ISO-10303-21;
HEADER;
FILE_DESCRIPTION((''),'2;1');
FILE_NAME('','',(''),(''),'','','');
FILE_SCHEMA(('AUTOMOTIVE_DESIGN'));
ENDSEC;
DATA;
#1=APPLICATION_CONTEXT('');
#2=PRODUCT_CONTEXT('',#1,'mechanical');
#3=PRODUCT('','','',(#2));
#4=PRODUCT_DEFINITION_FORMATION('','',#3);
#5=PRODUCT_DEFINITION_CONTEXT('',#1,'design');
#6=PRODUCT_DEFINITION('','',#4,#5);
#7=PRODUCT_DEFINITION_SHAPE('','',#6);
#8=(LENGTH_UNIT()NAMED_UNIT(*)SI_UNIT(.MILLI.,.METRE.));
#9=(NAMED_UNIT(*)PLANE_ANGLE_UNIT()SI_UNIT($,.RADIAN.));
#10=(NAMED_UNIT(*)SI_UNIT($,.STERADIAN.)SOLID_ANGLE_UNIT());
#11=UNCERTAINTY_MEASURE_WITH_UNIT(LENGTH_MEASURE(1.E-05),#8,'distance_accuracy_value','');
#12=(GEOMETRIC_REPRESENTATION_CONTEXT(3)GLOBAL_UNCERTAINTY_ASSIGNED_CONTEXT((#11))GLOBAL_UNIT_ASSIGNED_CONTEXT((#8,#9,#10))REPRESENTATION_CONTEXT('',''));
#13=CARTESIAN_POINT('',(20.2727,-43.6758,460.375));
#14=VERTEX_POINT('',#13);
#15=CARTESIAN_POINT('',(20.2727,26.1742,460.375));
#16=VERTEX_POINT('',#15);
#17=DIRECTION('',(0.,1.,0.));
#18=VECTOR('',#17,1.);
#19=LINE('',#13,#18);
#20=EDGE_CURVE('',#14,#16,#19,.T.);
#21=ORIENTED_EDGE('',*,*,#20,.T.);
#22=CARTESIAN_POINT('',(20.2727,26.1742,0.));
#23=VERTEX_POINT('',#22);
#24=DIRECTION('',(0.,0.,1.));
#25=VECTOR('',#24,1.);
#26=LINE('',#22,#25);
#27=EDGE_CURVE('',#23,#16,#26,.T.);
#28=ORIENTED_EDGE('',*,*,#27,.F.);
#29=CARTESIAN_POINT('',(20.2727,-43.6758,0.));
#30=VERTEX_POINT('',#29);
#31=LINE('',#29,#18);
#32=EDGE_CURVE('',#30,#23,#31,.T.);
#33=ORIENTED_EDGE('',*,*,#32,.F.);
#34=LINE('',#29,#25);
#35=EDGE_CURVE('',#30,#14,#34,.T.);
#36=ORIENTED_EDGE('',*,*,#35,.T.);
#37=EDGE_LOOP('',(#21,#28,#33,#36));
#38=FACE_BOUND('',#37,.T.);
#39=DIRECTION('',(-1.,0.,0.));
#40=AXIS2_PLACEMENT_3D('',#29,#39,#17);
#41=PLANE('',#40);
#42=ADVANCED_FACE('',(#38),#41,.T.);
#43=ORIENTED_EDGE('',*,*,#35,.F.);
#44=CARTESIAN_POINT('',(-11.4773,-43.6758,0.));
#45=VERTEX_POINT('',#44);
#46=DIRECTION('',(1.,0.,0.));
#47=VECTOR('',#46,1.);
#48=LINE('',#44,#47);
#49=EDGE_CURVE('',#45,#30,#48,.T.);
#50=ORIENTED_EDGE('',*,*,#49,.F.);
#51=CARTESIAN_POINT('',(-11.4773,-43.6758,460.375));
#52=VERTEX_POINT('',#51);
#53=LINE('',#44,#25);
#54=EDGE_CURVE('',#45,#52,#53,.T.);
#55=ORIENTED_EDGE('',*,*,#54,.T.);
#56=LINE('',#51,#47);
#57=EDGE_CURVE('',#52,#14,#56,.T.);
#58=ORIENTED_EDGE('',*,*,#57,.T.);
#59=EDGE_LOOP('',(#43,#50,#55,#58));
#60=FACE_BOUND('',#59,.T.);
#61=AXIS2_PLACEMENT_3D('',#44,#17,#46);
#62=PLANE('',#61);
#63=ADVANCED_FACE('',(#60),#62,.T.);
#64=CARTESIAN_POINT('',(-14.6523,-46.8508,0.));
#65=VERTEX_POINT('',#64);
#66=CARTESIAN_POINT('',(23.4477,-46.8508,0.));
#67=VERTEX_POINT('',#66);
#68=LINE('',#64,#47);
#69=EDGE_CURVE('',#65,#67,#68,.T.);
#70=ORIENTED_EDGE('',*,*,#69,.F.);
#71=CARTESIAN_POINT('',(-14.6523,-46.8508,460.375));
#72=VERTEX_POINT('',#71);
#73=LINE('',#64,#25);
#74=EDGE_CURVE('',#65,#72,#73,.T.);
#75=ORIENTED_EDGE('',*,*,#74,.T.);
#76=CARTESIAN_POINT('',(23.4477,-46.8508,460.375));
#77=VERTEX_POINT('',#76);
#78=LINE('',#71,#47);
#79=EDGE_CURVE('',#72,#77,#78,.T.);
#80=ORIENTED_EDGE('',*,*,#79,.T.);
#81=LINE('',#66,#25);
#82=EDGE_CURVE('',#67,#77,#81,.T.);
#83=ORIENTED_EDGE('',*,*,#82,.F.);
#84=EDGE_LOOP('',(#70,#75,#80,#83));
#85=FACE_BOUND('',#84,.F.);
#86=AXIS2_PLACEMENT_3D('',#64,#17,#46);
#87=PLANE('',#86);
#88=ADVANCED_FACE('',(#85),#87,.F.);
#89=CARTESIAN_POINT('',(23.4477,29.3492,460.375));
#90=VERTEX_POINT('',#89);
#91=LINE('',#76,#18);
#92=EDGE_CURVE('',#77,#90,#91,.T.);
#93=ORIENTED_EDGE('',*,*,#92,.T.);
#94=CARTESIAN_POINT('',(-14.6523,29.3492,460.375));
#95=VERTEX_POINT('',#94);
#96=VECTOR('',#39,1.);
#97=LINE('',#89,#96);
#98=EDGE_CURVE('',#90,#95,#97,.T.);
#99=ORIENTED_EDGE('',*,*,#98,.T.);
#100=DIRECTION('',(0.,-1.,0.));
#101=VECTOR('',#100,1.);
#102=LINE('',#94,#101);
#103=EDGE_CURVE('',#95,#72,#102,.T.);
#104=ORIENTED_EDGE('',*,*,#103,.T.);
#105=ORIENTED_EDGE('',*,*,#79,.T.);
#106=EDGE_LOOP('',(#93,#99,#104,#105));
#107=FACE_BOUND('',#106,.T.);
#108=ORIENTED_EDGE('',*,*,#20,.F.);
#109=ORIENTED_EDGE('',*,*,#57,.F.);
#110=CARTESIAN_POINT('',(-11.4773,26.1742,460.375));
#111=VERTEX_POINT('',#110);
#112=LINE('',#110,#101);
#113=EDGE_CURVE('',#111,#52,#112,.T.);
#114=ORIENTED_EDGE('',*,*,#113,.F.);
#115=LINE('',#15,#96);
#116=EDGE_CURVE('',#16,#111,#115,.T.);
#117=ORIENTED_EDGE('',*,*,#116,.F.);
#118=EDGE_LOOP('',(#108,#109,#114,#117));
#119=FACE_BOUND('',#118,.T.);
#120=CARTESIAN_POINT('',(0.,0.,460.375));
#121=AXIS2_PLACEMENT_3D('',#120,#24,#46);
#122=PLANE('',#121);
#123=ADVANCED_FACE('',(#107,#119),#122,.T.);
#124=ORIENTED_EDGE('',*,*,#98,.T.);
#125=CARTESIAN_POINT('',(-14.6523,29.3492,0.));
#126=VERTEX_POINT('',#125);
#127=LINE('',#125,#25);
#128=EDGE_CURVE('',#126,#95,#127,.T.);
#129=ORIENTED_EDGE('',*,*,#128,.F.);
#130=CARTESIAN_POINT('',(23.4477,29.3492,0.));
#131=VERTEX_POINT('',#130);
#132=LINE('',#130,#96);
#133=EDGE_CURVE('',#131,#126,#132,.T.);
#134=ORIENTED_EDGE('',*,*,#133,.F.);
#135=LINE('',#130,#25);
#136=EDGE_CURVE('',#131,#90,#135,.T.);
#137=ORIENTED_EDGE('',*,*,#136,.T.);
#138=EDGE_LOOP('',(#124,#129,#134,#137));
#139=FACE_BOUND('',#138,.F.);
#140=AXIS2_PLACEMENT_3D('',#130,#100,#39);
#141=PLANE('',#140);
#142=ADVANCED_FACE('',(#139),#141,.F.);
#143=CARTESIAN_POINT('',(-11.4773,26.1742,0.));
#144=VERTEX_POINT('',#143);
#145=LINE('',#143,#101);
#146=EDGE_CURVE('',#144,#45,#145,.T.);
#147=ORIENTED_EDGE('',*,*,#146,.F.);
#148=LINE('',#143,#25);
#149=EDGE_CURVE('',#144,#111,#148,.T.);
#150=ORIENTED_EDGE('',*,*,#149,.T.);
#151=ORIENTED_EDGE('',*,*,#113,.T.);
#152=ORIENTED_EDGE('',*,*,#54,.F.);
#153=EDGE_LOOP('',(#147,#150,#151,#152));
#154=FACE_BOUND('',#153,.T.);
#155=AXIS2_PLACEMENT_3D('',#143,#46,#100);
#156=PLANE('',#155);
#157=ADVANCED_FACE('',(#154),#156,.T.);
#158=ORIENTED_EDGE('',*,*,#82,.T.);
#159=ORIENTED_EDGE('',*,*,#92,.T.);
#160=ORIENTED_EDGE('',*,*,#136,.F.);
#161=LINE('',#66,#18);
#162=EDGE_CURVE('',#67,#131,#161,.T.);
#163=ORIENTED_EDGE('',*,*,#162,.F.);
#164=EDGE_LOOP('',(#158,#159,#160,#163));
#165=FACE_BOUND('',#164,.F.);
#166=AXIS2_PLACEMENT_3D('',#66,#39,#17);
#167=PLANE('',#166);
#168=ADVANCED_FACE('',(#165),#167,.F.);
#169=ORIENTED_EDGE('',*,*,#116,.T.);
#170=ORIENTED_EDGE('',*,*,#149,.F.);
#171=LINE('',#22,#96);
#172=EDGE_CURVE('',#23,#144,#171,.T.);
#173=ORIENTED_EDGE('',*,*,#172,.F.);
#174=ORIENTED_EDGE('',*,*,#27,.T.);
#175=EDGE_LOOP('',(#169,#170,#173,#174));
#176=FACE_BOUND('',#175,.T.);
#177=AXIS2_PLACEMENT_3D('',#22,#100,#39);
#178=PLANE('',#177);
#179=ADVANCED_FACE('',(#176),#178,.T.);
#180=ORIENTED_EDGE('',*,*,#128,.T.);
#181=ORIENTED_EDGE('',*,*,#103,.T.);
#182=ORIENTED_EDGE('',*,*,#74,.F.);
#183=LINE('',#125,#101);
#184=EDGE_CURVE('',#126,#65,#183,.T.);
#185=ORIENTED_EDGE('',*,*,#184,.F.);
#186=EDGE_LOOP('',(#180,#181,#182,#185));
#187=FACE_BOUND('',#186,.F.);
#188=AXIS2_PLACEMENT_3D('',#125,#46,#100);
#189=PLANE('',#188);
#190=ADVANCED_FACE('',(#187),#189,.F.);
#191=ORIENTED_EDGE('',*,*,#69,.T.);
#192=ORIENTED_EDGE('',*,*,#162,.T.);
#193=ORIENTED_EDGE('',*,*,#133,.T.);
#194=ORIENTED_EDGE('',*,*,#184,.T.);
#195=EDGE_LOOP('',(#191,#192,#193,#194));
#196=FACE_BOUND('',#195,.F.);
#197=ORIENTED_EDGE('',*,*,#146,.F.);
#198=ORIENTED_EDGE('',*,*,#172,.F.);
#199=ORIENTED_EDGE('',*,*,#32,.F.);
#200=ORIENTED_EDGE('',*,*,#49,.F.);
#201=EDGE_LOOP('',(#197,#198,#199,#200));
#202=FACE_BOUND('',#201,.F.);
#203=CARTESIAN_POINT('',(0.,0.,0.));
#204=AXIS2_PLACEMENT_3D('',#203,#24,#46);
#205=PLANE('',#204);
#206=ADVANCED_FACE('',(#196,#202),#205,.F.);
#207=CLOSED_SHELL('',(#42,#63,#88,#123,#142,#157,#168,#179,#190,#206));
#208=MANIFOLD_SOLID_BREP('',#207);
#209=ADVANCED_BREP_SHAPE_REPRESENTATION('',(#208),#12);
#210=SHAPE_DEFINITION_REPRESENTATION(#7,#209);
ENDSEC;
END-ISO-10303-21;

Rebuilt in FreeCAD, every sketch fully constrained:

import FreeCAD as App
import Part
import Sketcher

V = App.Vector
Q = App.Units.Quantity

doc = App.newDocument("Part")
body = doc.addObject("PartDesign::Body", "Body")

# Sketch on XY plane
sketch1 = doc.addObject("Sketcher::SketchObject", "Sketch")
body.addObject(sketch1)
sketch1.AttachmentSupport = (doc.XY_Plane, [""])
sketch1.MapMode = "FlatFace"
sketch1.addGeometry(Part.LineSegment(V(23, -47, 0), V(23, 29, 0)), False)
sketch1.addGeometry(Part.LineSegment(V(23, 29, 0), V(-15, 29, 0)), False)
sketch1.addGeometry(Part.LineSegment(V(-15, 29, 0), V(-15, -47, 0)), False)
sketch1.addGeometry(Part.LineSegment(V(-15, -47, 0), V(23, -47, 0)), False)
sketch1.addGeometry(Part.LineSegment(V(-11, 26, 0), V(20, 26, 0)), False)
sketch1.addGeometry(Part.LineSegment(V(20, 26, 0), V(20, -44, 0)), False)
sketch1.addGeometry(Part.LineSegment(V(20, -44, 0), V(-11, -44, 0)), False)
sketch1.addGeometry(Part.LineSegment(V(-11, -44, 0), V(-11, 26, 0)), False)
sketch1.addConstraint(Sketcher.Constraint("Coincident", 0, 2, 1, 1))
sketch1.addConstraint(Sketcher.Constraint("Coincident", 1, 2, 2, 1))
sketch1.addConstraint(Sketcher.Constraint("Coincident", 2, 2, 3, 1))
sketch1.addConstraint(Sketcher.Constraint("Coincident", 3, 2, 0, 1))
sketch1.addConstraint(Sketcher.Constraint("Coincident", 4, 2, 5, 1))
sketch1.addConstraint(Sketcher.Constraint("Coincident", 5, 2, 6, 1))
sketch1.addConstraint(Sketcher.Constraint("Coincident", 6, 2, 7, 1))
sketch1.addConstraint(Sketcher.Constraint("Coincident", 7, 2, 4, 1))
sketch1.addConstraint(Sketcher.Constraint("Vertical", 0))
sketch1.addConstraint(Sketcher.Constraint("Horizontal", 1))
sketch1.addConstraint(Sketcher.Constraint("Vertical", 2))
sketch1.addConstraint(Sketcher.Constraint("Horizontal", 3))
sketch1.addConstraint(Sketcher.Constraint("Horizontal", 4))
sketch1.addConstraint(Sketcher.Constraint("Vertical", 5))
sketch1.addConstraint(Sketcher.Constraint("Horizontal", 6))
sketch1.addConstraint(Sketcher.Constraint("Vertical", 7))
sketch1.addConstraint(Sketcher.Constraint("DistanceY", 0, 1, 0, 2, Q("3 in")))
sketch1.addConstraint(Sketcher.Constraint("DistanceX", 1, 2, 1, 1, Q("1.5 in")))
sketch1.addConstraint(Sketcher.Constraint("DistanceX", 4, 2, 0, 2, Q("0.125 in")))
sketch1.addConstraint(Sketcher.Constraint("DistanceY", 4, 2, 0, 2, Q("0.125 in")))
sketch1.addConstraint(Sketcher.Constraint("DistanceY", 3, 2, 5, 2, Q("0.125 in")))
sketch1.addConstraint(Sketcher.Constraint("DistanceX", 2, 2, 6, 2, Q("0.125 in")))
sketch1.addConstraint(Sketcher.Constraint("DistanceX", -1, 1, 0, 2, Q("23.4477 mm")))
sketch1.addConstraint(Sketcher.Constraint("DistanceY", -1, 1, 0, 2, Q("29.3492 mm")))
pad1 = doc.addObject("PartDesign::Pad", "Pad")
body.addObject(pad1)
pad1.Profile = sketch1
pad1.Length = Q("18.125 in")

doc.recompute()
